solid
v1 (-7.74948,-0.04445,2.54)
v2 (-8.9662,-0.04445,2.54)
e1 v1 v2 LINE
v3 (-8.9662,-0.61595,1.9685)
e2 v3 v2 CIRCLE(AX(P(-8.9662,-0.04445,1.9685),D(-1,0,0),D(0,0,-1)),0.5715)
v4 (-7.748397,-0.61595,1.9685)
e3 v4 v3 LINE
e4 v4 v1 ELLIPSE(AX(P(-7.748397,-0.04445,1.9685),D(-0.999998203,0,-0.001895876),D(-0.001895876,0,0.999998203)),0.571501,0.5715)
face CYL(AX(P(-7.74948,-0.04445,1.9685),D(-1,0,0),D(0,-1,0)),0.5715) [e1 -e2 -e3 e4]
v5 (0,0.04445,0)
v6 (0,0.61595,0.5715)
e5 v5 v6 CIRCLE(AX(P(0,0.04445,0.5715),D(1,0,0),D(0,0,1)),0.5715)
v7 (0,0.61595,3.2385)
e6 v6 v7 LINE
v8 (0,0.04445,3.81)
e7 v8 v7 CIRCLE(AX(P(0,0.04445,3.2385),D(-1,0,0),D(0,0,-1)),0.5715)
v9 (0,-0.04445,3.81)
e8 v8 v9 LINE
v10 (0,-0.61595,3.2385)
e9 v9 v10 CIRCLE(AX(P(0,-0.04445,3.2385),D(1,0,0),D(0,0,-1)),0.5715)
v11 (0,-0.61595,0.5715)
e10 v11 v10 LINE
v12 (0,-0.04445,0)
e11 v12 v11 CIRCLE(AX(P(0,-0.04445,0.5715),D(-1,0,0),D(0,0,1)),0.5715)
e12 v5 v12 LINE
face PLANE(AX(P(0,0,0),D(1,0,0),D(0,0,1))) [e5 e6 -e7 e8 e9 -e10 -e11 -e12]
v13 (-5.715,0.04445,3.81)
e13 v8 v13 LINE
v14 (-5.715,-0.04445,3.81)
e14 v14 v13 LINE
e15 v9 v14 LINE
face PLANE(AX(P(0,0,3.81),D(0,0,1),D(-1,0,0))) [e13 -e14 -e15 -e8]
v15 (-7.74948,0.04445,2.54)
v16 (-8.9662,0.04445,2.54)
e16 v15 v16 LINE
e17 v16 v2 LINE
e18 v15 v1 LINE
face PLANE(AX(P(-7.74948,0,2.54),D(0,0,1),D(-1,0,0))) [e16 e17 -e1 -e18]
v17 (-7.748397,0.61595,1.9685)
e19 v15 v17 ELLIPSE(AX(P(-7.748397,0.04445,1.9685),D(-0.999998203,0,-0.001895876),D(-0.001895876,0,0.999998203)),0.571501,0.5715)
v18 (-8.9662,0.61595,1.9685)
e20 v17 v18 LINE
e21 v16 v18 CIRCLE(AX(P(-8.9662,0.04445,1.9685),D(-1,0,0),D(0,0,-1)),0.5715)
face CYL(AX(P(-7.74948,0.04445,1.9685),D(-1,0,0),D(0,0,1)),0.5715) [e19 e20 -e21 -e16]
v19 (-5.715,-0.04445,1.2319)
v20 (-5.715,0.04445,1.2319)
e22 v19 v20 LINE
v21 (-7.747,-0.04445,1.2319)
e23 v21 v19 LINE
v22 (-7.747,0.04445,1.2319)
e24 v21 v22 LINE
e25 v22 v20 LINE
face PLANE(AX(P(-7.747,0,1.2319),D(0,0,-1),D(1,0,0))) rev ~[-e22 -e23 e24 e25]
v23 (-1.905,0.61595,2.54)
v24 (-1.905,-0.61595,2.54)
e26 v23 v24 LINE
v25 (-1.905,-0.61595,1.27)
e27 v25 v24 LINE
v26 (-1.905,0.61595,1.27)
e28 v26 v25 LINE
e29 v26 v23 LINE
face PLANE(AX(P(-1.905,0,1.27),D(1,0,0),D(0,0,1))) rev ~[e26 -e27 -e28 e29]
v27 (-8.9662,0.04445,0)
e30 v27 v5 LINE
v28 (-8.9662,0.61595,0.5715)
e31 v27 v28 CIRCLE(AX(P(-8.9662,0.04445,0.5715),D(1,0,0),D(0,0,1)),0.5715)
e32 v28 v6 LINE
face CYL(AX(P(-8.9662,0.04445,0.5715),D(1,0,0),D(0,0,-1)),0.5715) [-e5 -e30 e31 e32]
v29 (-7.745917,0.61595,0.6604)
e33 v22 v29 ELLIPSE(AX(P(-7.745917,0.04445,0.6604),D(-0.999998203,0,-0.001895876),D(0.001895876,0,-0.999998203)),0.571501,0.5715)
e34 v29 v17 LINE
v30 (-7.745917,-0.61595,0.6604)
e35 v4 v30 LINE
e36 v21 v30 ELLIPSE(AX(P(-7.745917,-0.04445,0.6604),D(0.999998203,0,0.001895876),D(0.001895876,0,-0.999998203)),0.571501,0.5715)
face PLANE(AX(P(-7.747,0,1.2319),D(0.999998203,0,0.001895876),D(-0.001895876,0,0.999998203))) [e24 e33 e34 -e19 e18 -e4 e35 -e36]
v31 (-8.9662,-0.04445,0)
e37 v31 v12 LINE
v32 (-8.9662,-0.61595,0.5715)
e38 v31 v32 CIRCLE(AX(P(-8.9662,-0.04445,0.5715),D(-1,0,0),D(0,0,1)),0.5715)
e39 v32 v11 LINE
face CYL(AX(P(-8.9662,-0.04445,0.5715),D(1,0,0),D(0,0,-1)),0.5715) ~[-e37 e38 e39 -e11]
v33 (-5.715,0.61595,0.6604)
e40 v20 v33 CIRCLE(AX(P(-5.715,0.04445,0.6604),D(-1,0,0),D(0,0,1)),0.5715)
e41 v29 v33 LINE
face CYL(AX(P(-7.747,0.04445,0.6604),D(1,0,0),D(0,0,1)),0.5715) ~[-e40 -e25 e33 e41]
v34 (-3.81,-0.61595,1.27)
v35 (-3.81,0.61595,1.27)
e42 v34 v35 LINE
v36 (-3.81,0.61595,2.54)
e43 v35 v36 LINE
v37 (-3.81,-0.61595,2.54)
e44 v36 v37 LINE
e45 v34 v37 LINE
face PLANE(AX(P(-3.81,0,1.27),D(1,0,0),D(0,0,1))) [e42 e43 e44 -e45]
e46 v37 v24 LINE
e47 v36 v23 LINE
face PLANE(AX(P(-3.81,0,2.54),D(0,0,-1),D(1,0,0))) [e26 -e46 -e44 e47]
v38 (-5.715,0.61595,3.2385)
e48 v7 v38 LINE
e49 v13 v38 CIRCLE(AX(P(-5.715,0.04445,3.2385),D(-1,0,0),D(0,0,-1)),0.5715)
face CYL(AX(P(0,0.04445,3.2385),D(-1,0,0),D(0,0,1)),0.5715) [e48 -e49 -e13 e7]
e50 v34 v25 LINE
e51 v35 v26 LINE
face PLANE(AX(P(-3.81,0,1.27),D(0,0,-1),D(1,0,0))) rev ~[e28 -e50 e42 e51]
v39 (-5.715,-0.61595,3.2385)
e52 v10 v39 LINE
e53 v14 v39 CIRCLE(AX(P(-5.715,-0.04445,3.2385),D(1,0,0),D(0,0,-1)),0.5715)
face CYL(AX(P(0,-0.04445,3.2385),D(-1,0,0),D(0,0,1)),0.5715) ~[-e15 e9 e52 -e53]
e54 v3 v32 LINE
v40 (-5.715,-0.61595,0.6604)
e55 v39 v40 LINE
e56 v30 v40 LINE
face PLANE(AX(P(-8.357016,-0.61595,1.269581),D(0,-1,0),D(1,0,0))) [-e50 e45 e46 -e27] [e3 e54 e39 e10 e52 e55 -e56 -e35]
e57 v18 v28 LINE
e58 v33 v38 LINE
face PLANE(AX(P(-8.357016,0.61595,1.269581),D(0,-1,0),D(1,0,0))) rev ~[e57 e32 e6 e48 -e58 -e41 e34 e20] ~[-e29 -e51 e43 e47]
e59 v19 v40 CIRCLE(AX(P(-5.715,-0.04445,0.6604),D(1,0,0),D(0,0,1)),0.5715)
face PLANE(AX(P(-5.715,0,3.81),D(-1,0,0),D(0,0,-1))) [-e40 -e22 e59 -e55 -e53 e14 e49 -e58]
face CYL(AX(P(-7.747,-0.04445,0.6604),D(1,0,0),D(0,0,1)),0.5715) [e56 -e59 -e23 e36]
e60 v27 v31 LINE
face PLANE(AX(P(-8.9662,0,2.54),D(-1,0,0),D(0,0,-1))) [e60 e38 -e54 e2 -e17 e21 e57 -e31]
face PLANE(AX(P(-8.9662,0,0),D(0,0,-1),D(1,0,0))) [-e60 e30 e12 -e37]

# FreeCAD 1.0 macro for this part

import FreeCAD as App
import Part
import Sketcher
Q = App.Units.Quantity


def edges_at(feature, points):
    """Names of the edges that pass closest to the given points."""
    edges = feature.Shape.Edges
    near = lambda p: min(range(len(edges)), key=lambda i: edges[i].distToShape(Part.Vertex(*p))[0])
    return sorted({f"Edge{near(p) + 1}" for p in points})


def add_polygon(sketch, points):
    """Adds a closed chain of lines whose ends are joined by coincident constraints."""
    first, n = sketch.GeometryCount, len(points)
    for a, b in zip(points, points[1:] + points[:1]):
        sketch.addGeometry(Part.LineSegment(App.Vector(*a, 0), App.Vector(*b, 0)), False)
    for i in range(n):
        sketch.addConstraint(Sketcher.Constraint("Coincident", first + i, 2, first + (i + 1) % n, 1))

doc = App.newDocument("Part")
params = doc.addObject("Spreadsheet::Sheet", "Params")
for row, (alias, value) in enumerate([
    ("sketch1_height", "0.1 in"),
    ("sketch1_width", "0.08 in"),
    ("sketch1_height2", "0.15 in"),
    ("sketch1_height3", "0.05 in"),
    ("sketch1_width2", "0.353 in"),
    ("pad1_length", "0.0485 in"),
    ("fillet_radius", "0.0225 in"),
], start=1):
    params.set(f"A{row}", alias)
    params.set(f"B{row}", "=" + value)
    params.setAlias(f"B{row}", alias)

body = doc.addObject("PartDesign::Body", "Body")

# Sketch on XZ plane
sketch1 = body.newObject("Sketcher::SketchObject", "Sketch")
sketch1.AttachmentSupport = (doc.getObject("XZ_Plane"), [""])
sketch1.MapMode = "FlatFace"
add_polygon(sketch1, [(-7.7, 1.2), (-7.7, 2.5), (-9, 2.5), (-9, 0), (0, 0), (0, 3.8), (-5.7, 3.8), (-5.7, 1.2)])  # lines 0-7
add_polygon(sketch1, [(-3.8, 1.3), (-3.8, 2.5), (-1.9, 2.5), (-1.9, 1.3)])  # lines 8-11
sketch1.addConstraint([
    Sketcher.Constraint("Horizontal", 1),
    Sketcher.Constraint("Vertical", 2),
    Sketcher.Constraint("Horizontal", 3),
    Sketcher.Constraint("Vertical", 4),
    Sketcher.Constraint("Horizontal", 5),
    Sketcher.Constraint("Vertical", 6),
    Sketcher.Constraint("Horizontal", 7),
    Sketcher.Constraint("Vertical", 8),
    Sketcher.Constraint("Horizontal", 9),
    Sketcher.Constraint("Vertical", 10),
    Sketcher.Constraint("Horizontal", 11),
    Sketcher.Constraint("Coincident", 3, 2, -1, 1),
    Sketcher.Constraint("Horizontal", 1, 2, 8, 2),
    Sketcher.Constraint("DistanceY", 2, 2, 2, 1, Q("0.1 in")),
    Sketcher.Constraint("DistanceX", 7, 2, 7, 1, Q("0.08 in")),
    Sketcher.Constraint("DistanceY", 4, 1, 4, 2, Q("0.15 in")),
    Sketcher.Constraint("DistanceY", 8, 1, 8, 2, Q("0.05 in")),
    Sketcher.Constraint("DistanceX", 3, 1, 3, 2, Q("0.353 in")),
    Sketcher.Constraint("DistanceX", 5, 2, 5, 1, Q("0.225 in")),
    Sketcher.Constraint("DistanceX", 9, 1, 9, 2, Q("0.075 in")),
    Sketcher.Constraint("DistanceX", 8, 2, -1, 1, Q("0.15 in")),
    Sketcher.Constraint("DistanceY", 6, 2, 6, 1, Q("0.1015 in")),
    Sketcher.Constraint("DistanceX", 1, 2, 1, 1, Q("1.21672 mm")),
])
sketch1.setExpression("Constraints[25]", "Params.sketch1_height")
sketch1.setExpression("Constraints[26]", "Params.sketch1_width")
sketch1.setExpression("Constraints[27]", "Params.sketch1_height2")
sketch1.setExpression("Constraints[28]", "Params.sketch1_height3")
sketch1.setExpression("Constraints[29]", "Params.sketch1_width2")
pad1 = body.newObject("PartDesign::Pad", "Pad")
pad1.Profile = sketch1
pad1.setExpression("Length", "Params.pad1_length")
pad1.Midplane = True
doc.recompute()

fillet = body.newObject("PartDesign::Fillet", "Fillet")
fillet.Base = (pad1, edges_at(pad1, [
    (-6.731, 0.616, 1.232),
    (-6.731, -0.616, 1.232),
    (-4.483, -0.616, 0),
    (-4.483, 0.616, 0),
    (-8.358, -0.616, 2.54),
    (-8.358, 0.616, 2.54),
    (-2.857, -0.616, 3.81),
    (-2.857, 0.616, 3.81),
]))
fillet.setExpression("Radius", "Params.fillet_radius")

doc.recompute()
